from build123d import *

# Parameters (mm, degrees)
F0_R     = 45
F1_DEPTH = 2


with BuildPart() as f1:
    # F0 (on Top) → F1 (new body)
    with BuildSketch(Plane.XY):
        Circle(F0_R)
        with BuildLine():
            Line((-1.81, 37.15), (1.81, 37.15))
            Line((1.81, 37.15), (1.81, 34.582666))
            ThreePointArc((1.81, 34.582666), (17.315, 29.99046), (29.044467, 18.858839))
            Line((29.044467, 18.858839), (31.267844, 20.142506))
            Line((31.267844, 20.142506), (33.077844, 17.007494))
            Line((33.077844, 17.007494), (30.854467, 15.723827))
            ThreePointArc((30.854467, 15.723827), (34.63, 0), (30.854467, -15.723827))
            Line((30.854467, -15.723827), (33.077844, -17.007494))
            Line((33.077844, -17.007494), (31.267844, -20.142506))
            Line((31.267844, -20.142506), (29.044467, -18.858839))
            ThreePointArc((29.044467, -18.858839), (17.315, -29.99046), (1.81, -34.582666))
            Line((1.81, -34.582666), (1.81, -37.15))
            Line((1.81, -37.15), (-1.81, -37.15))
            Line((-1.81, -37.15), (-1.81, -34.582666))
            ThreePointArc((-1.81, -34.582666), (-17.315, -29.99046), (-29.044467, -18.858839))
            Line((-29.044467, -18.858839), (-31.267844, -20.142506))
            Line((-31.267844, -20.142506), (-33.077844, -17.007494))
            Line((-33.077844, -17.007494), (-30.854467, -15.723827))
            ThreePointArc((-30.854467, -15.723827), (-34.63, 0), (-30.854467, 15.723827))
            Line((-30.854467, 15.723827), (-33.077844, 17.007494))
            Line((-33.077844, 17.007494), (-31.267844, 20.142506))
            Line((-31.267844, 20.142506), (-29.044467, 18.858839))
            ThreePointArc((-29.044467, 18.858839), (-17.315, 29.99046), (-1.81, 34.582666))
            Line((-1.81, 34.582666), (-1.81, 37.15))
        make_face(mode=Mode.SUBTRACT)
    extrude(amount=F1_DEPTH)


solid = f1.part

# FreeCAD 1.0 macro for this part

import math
import FreeCAD as App
import Part
import Sketcher

V = App.Vector
Q = App.Units.Quantity

doc = App.newDocument("Part")
body = doc.addObject("PartDesign::Body", "Body")

# Sketch on XY plane
sketch1 = body.newObject("Sketcher::SketchObject", "Sketch")
sketch1.AttachmentSupport = (doc.getObject("XY_Plane"), [""])
sketch1.MapMode = "FlatFace"
sketch1.addGeometry([
    Part.Circle(V(0, 0, 0), V(0, 0, 1), 45),  # 0
    Part.LineSegment(V(-1.8, 34.6, 0), V(-1.8, 37.1, 0)),  # 1
    Part.LineSegment(V(-1.8, 37.1, 0), V(1.8, 37.1, 0)),  # 2
    Part.LineSegment(V(1.8, 37.1, 0), V(1.8, 34.6, 0)),  # 3
    Part.ArcOfCircle(Part.Circle(V(0, 0, 0), V(0, 0, 1), 34.6), math.radians(33), math.radians(87)),  # 4
    Part.LineSegment(V(29, 18.9, 0), V(31.3, 20.1, 0)),  # 5
    Part.LineSegment(V(31.3, 20.1, 0), V(33.1, 17, 0)),  # 6
    Part.LineSegment(V(33.1, 17, 0), V(30.9, 15.7, 0)),  # 7
    Part.ArcOfCircle(Part.Circle(V(0, 0, 0), V(0, 0, 1), 34.6), math.radians(-27), math.radians(27)),  # 8
    Part.LineSegment(V(30.9, -15.7, 0), V(33.1, -17, 0)),  # 9
    Part.LineSegment(V(33.1, -17, 0), V(31.3, -20.1, 0)),  # 10
    Part.LineSegment(V(31.3, -20.1, 0), V(29, -18.9, 0)),  # 11
    Part.ArcOfCircle(Part.Circle(V(0, 0, 0), V(0, 0, 1), 34.6), math.radians(-87), math.radians(-33)),  # 12
    Part.LineSegment(V(1.8, -34.6, 0), V(1.8, -37.1, 0)),  # 13
    Part.LineSegment(V(1.8, -37.1, 0), V(-1.8, -37.1, 0)),  # 14
    Part.LineSegment(V(-1.8, -37.1, 0), V(-1.8, -34.6, 0)),  # 15
    Part.ArcOfCircle(Part.Circle(V(0, 0, 0), V(0, 0, 1), 34.6), math.radians(-147), math.radians(-93)),  # 16
    Part.LineSegment(V(-29, -18.9, 0), V(-31.3, -20.1, 0)),  # 17
    Part.LineSegment(V(-31.3, -20.1, 0), V(-33.1, -17, 0)),  # 18
    Part.LineSegment(V(-33.1, -17, 0), V(-30.9, -15.7, 0)),  # 19
    Part.ArcOfCircle(Part.Circle(V(0, 0, 0), V(0, 0, 1), 34.6), math.radians(153), math.radians(207)),  # 20
    Part.LineSegment(V(-30.9, 15.7, 0), V(-33.1, 17, 0)),  # 21
    Part.LineSegment(V(-33.1, 17, 0), V(-31.3, 20.1, 0)),  # 22
    Part.LineSegment(V(-31.3, 20.1, 0), V(-29, 18.9, 0)),  # 23
    Part.ArcOfCircle(Part.Circle(V(0, 0, 0), V(0, 0, 1), 34.6), math.radians(93), math.radians(147)),  # 24
], False)
sketch1.addConstraint([
    Sketcher.Constraint("Coincident", 1, 2, 2, 1),
    Sketcher.Constraint("Coincident", 2, 2, 3, 1),
    Sketcher.Constraint("Coincident", 3, 2, 4, 2),
    Sketcher.Constraint("Coincident", 4, 1, 5, 1),
    Sketcher.Constraint("Coincident", 5, 2, 6, 1),
    Sketcher.Constraint("Coincident", 6, 2, 7, 1),
    Sketcher.Constraint("Coincident", 7, 2, 8, 2),
    Sketcher.Constraint("Coincident", 8, 1, 9, 1),
    Sketcher.Constraint("Coincident", 9, 2, 10, 1),
    Sketcher.Constraint("Coincident", 10, 2, 11, 1),
    Sketcher.Constraint("Coincident", 11, 2, 12, 2),
    Sketcher.Constraint("Coincident", 12, 1, 13, 1),
    Sketcher.Constraint("Coincident", 13, 2, 14, 1),
    Sketcher.Constraint("Coincident", 14, 2, 15, 1),
    Sketcher.Constraint("Coincident", 15, 2, 16, 2),
    Sketcher.Constraint("Coincident", 16, 1, 17, 1),
    Sketcher.Constraint("Coincident", 17, 2, 18, 1),
    Sketcher.Constraint("Coincident", 18, 2, 19, 1),
    Sketcher.Constraint("Coincident", 19, 2, 20, 2),
    Sketcher.Constraint("Coincident", 20, 1, 21, 1),
    Sketcher.Constraint("Coincident", 21, 2, 22, 1),
    Sketcher.Constraint("Coincident", 22, 2, 23, 1),
    Sketcher.Constraint("Coincident", 23, 2, 24, 2),
    Sketcher.Constraint("Coincident", 24, 1, 1, 1),
    Sketcher.Constraint("Vertical", 1),
    Sketcher.Constraint("Horizontal", 2),
    Sketcher.Constraint("Vertical", 3),
    Sketcher.Constraint("Vertical", 13),
    Sketcher.Constraint("Horizontal", 14),
    Sketcher.Constraint("Vertical", 15),
    Sketcher.Constraint("Coincident", 0, 3, -1, 1),
    Sketcher.Constraint("Coincident", 4, 3, -1, 1),
    Sketcher.Constraint("Coincident", 8, 3, -1, 1),
    Sketcher.Constraint("Coincident", 12, 3, -1, 1),
    Sketcher.Constraint("Coincident", 16, 3, -1, 1),
    Sketcher.Constraint("Coincident", 20, 3, -1, 1),
    Sketcher.Constraint("Coincident", 24, 3, -1, 1),
    Sketcher.Constraint("Equal", 4, 8),
    Sketcher.Constraint("Equal", 8, 12),
    Sketcher.Constraint("Equal", 12, 16),
    Sketcher.Constraint("Equal", 16, 20),
    Sketcher.Constraint("Equal", 20, 24),
    Sketcher.Constraint("Symmetric", 1, 2, 13, 2, -1, 1),
    Sketcher.Constraint("Symmetric", 5, 2, 17, 2, -1, 1),
    Sketcher.Constraint("Symmetric", 6, 2, 18, 2, -1, 1),
    Sketcher.Constraint("Symmetric", 9, 2, 21, 2, -1, 1),
    Sketcher.Constraint("Symmetric", 10, 2, 22, 2, -1, 1),
    Sketcher.Constraint("Symmetric", 10, 2, 17, 2, -2),
    Sketcher.Constraint("Symmetric", 9, 2, 18, 2, -2),
    Sketcher.Constraint("Perpendicular", 5, 6),
    Sketcher.Constraint("Perpendicular", 6, 7),
    Sketcher.Constraint("Perpendicular", 9, 10),
    Sketcher.Constraint("Perpendicular", 10, 11),
    Sketcher.Constraint("Parallel", 7, 17),
    Sketcher.Constraint("Perpendicular", 18, 19),
    Sketcher.Constraint("Parallel", 11, 21),
    Sketcher.Constraint("Perpendicular", 22, 23),
    Sketcher.Constraint("Horizontal", 12, 1, 15, 2),
    Sketcher.Constraint("Horizontal", 3, 2, 24, 1),
    Sketcher.Constraint("Equal", 5, 7),
    Sketcher.Constraint("Diameter", 0, 90.0),
    Sketcher.Constraint("Angle", 5, Q("29.999994 deg")),
    Sketcher.Constraint("DistanceX", 2, 1, 2, 2, 3.62),
    Sketcher.Constraint("Distance", 6, 3.62),
    Sketcher.Constraint("DistanceY", -1, 1, 1, 2, 37.15),
    Sketcher.Constraint("Radius", 4, 34.629995),
    Sketcher.Constraint("DistanceY", 4, 3, 5, 2, 20.142502),
])
pad1 = body.newObject("PartDesign::Pad", "Pad")
pad1.Profile = sketch1
pad1.Length = 2

doc.recompute()
